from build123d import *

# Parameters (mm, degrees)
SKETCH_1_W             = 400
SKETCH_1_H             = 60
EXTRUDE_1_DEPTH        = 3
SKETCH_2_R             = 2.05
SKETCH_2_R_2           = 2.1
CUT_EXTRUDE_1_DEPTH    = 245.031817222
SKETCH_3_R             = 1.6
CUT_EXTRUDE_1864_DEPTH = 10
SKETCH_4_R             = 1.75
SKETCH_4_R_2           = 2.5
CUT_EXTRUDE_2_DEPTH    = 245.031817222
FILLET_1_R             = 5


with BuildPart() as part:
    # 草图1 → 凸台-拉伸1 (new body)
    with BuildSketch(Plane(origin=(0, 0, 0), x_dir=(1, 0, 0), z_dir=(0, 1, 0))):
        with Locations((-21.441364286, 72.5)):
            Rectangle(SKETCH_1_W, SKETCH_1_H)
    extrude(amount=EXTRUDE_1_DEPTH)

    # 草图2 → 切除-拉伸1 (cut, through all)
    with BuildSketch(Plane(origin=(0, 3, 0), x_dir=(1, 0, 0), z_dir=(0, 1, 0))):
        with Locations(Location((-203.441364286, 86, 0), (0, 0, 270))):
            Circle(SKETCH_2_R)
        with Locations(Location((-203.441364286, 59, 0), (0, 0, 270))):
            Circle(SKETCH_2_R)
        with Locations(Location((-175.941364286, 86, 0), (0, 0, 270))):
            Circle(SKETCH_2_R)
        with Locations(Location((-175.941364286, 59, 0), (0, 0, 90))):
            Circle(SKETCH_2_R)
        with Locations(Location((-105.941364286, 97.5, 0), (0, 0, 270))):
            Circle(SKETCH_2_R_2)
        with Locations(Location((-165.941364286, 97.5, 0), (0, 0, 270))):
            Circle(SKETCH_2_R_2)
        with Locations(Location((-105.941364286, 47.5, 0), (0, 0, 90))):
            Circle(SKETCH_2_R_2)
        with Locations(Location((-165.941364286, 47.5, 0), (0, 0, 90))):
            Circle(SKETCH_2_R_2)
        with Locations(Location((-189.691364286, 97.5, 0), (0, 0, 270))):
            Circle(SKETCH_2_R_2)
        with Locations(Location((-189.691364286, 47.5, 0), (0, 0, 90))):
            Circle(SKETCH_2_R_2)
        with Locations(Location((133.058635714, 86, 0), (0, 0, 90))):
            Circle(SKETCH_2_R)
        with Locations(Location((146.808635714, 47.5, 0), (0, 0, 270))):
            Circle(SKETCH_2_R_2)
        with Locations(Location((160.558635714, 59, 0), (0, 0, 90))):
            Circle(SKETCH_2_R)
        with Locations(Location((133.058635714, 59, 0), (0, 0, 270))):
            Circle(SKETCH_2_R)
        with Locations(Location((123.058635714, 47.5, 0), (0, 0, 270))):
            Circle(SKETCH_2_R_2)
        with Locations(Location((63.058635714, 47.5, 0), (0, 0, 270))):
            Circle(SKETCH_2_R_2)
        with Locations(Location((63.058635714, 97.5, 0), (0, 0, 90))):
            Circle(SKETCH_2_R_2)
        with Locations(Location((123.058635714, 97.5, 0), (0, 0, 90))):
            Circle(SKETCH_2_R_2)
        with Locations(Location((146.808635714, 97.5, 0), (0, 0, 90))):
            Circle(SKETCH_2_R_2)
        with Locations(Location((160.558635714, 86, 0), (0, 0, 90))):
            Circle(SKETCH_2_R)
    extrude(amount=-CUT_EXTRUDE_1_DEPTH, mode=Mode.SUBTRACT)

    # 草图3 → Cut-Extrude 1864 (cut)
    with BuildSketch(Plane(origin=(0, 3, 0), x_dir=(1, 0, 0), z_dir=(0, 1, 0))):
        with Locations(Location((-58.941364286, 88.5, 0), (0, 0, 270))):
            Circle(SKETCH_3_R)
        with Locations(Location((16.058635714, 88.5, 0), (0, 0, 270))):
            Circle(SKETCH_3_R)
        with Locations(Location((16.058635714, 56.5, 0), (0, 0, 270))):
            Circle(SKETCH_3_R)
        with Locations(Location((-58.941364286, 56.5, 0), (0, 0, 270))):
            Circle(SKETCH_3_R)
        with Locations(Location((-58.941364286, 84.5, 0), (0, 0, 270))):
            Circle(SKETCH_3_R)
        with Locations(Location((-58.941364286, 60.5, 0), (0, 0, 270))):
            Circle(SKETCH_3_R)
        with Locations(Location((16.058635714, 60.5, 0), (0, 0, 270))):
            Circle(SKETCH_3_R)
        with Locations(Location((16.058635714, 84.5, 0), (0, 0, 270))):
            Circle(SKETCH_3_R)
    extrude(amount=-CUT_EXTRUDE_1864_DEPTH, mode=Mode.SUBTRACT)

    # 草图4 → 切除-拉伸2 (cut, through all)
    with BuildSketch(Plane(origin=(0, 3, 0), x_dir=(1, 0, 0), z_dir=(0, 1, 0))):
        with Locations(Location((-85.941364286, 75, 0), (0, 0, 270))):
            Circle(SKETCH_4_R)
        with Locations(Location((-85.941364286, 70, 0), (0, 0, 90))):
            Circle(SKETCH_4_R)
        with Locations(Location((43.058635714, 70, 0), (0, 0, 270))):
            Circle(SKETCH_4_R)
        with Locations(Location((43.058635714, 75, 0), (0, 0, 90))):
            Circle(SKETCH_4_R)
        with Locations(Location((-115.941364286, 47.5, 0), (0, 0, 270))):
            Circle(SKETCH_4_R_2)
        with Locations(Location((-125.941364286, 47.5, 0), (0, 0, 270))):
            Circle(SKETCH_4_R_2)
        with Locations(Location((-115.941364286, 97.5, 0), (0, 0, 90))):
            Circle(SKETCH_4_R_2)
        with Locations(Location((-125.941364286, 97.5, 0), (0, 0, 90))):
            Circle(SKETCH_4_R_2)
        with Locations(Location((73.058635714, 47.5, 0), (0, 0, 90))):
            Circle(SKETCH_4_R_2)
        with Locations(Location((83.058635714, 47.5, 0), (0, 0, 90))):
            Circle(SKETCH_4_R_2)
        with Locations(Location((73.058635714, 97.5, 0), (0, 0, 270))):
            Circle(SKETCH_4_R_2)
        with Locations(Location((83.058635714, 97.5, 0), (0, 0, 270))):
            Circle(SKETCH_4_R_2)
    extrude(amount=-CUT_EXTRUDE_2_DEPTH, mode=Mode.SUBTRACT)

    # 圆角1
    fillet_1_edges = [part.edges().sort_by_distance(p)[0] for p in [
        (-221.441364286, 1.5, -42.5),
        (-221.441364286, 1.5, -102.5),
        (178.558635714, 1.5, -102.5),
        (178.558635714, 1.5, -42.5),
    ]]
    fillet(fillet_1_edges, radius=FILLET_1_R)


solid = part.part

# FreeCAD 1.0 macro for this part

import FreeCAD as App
import Part
import Sketcher
from FreeCAD import Vector


def edges_at(feature, points):
    """Names of the edges that pass closest to the given points."""
    edges = feature.Shape.Edges
    near = lambda p: min(range(len(edges)), key=lambda i: edges[i].distToShape(Part.Vertex(*p))[0])
    return sorted({f"Edge{near(p) + 1}" for p in points})


def add_polygon(sketch, points):
    """Adds a closed chain of lines whose ends are joined by coincident constraints."""
    first, n = sketch.GeometryCount, len(points)
    for a, b in zip(points, points[1:] + points[:1]):
        sketch.addGeometry(Part.LineSegment(App.Vector(*a, 0), App.Vector(*b, 0)), False)
    for i in range(n):
        sketch.addConstraint(Sketcher.Constraint("Coincident", first + i, 2, first + (i + 1) % n, 1))

doc = App.newDocument("Part")
body = doc.addObject("PartDesign::Body", "Body")

sketch1 = body.newObject("Sketcher::SketchObject", "Sketch")
sketch1.AttachmentSupport = (doc.getObject("XZ_Plane"), [""])
sketch1.MapMode = "FlatFace"
add_polygon(sketch1, [(-221.441364, -102.5), (-221.441364, -42.5), (178.558636, -42.5), (178.558636, -102.5)])
sketch1.addConstraint(Sketcher.Constraint("Vertical", 0))
sketch1.addConstraint(Sketcher.Constraint("Horizontal", 1))
sketch1.addConstraint(Sketcher.Constraint("Vertical", 2))
sketch1.addConstraint(Sketcher.Constraint("Horizontal", 3))
sketch1.addConstraint(Sketcher.Constraint("DistanceX", 1, 1, 1, 2, 400.0))
sketch1.addConstraint(Sketcher.Constraint("DistanceY", 0, 1, 0, 2, 60.0))
sketch1.addConstraint(Sketcher.Constraint("DistanceY", 0, 2, -1, 1, 42.5))
sketch1.addConstraint(Sketcher.Constraint("DistanceX", 0, 2, -1, 1, 221.441364))
pad1 = body.newObject("PartDesign::Pad", "Pad")
pad1.Profile = sketch1
pad1.Length = 3
pad1.Reversed = True

sketch2 = body.newObject("Sketcher::SketchObject", "Sketch001")
sketch2.AttachmentSupport = (doc.getObject("XZ_Plane"), [""])
sketch2.MapMode = "FlatFace"
sketch2.AttachmentOffset = App.Placement(Vector(0, 0, -3), App.Rotation())
sketch2.addGeometry(Part.Circle(Vector(-203.441364, -86, 0), Vector(0, 0, 1), 2.05), False)
sketch2.addGeometry(Part.Circle(Vector(-203.441364, -59, 0), Vector(0, 0, 1), 2.05), False)
sketch2.addGeometry(Part.Circle(Vector(-175.941364, -86, 0), Vector(0, 0, 1), 2.05), False)
sketch2.addGeometry(Part.Circle(Vector(-175.941364, -59, 0), Vector(0, 0, 1), 2.05), False)
sketch2.addGeometry(Part.Circle(Vector(-105.941364, -97.5, 0), Vector(0, 0, 1), 2.1), False)
sketch2.addGeometry(Part.Circle(Vector(-165.941364, -97.5, 0), Vector(0, 0, 1), 2.1), False)
sketch2.addGeometry(Part.Circle(Vector(-105.941364, -47.5, 0), Vector(0, 0, 1), 2.1), False)
sketch2.addGeometry(Part.Circle(Vector(-165.941364, -47.5, 0), Vector(0, 0, 1), 2.1), False)
sketch2.addGeometry(Part.Circle(Vector(-189.691364, -97.5, 0), Vector(0, 0, 1), 2.1), False)
sketch2.addGeometry(Part.Circle(Vector(-189.691364, -47.5, 0), Vector(0, 0, 1), 2.1), False)
sketch2.addGeometry(Part.Circle(Vector(133.058636, -86, 0), Vector(0, 0, 1), 2.05), False)
sketch2.addGeometry(Part.Circle(Vector(146.808636, -47.5, 0), Vector(0, 0, 1), 2.1), False)
sketch2.addGeometry(Part.Circle(Vector(160.558636, -59, 0), Vector(0, 0, 1), 2.05), False)
sketch2.addGeometry(Part.Circle(Vector(133.058636, -59, 0), Vector(0, 0, 1), 2.05), False)
sketch2.addGeometry(Part.Circle(Vector(123.058636, -47.5, 0), Vector(0, 0, 1), 2.1), False)
sketch2.addGeometry(Part.Circle(Vector(63.058636, -47.5, 0), Vector(0, 0, 1), 2.1), False)
sketch2.addGeometry(Part.Circle(Vector(63.058636, -97.5, 0), Vector(0, 0, 1), 2.1), False)
sketch2.addGeometry(Part.Circle(Vector(123.058636, -97.5, 0), Vector(0, 0, 1), 2.1), False)
sketch2.addGeometry(Part.Circle(Vector(146.808636, -97.5, 0), Vector(0, 0, 1), 2.1), False)
sketch2.addGeometry(Part.Circle(Vector(160.558636, -86, 0), Vector(0, 0, 1), 2.05), False)
sketch2.addConstraint(Sketcher.Constraint("Equal", 0, 1))
sketch2.addConstraint(Sketcher.Constraint("Equal", 1, 2))
sketch2.addConstraint(Sketcher.Constraint("Equal", 2, 3))
sketch2.addConstraint(Sketcher.Constraint("Equal", 4, 5))
sketch2.addConstraint(Sketcher.Constraint("Equal", 5, 6))
sketch2.addConstraint(Sketcher.Constraint("Equal", 6, 7))
sketch2.addConstraint(Sketcher.Constraint("Equal", 7, 8))
sketch2.addConstraint(Sketcher.Constraint("Equal", 8, 9))
sketch2.addConstraint(Sketcher.Constraint("Equal", 3, 10))
sketch2.addConstraint(Sketcher.Constraint("Equal", 9, 11))
sketch2.addConstraint(Sketcher.Constraint("Equal", 10, 12))
sketch2.addConstraint(Sketcher.Constraint("Equal", 12, 13))
sketch2.addConstraint(Sketcher.Constraint("Equal", 11, 14))
sketch2.addConstraint(Sketcher.Constraint("Equal", 14, 15))
sketch2.addConstraint(Sketcher.Constraint("Equal", 15, 16))
sketch2.addConstraint(Sketcher.Constraint("Equal", 16, 17))
sketch2.addConstraint(Sketcher.Constraint("Equal", 17, 18))
sketch2.addConstraint(Sketcher.Constraint("Equal", 13, 19))
sketch2.addConstraint(Sketcher.Constraint("Horizontal", 0, 3, 2, 3))
sketch2.addConstraint(Sketcher.Constraint("Horizontal", 1, 3, 3, 3))
sketch2.addConstraint(Sketcher.Constraint("Horizontal", 4, 3, 5, 3))
sketch2.addConstraint(Sketcher.Constraint("Horizontal", 6, 3, 7, 3))
sketch2.addConstraint(Sketcher.Constraint("Horizontal", 5, 3, 8, 3))
sketch2.addConstraint(Sketcher.Constraint("Horizontal", 7, 3, 9, 3))
sketch2.addConstraint(Sketcher.Constraint("Horizontal", 2, 3, 10, 3))
sketch2.addConstraint(Sketcher.Constraint("Horizontal", 9, 3, 11, 3))
sketch2.addConstraint(Sketcher.Constraint("Horizontal", 3, 3, 12, 3))
sketch2.addConstraint(Sketcher.Constraint("Horizontal", 12, 3, 13, 3))
sketch2.addConstraint(Sketcher.Constraint("Horizontal", 11, 3, 14, 3))
sketch2.addConstraint(Sketcher.Constraint("Horizontal", 14, 3, 15, 3))
sketch2.addConstraint(Sketcher.Constraint("Horizontal", 8, 3, 16, 3))
sketch2.addConstraint(Sketcher.Constraint("Horizontal", 16, 3, 17, 3))
sketch2.addConstraint(Sketcher.Constraint("Horizontal", 17, 3, 18, 3))
sketch2.addConstraint(Sketcher.Constraint("Horizontal", 10, 3, 19, 3))
sketch2.addConstraint(Sketcher.Constraint("Vertical", 0, 3, 1, 3))
sketch2.addConstraint(Sketcher.Constraint("Vertical", 2, 3, 3, 3))
sketch2.addConstraint(Sketcher.Constraint("Vertical", 4, 3, 6, 3))
sketch2.addConstraint(Sketcher.Constraint("Vertical", 5, 3, 7, 3))
sketch2.addConstraint(Sketcher.Constraint("Vertical", 8, 3, 9, 3))
sketch2.addConstraint(Sketcher.Constraint("Vertical", 10, 3, 13, 3))
sketch2.addConstraint(Sketcher.Constraint("Vertical", 15, 3, 16, 3))
sketch2.addConstraint(Sketcher.Constraint("Vertical", 14, 3, 17, 3))
sketch2.addConstraint(Sketcher.Constraint("Vertical", 11, 3, 18, 3))
sketch2.addConstraint(Sketcher.Constraint("Vertical", 12, 3, 19, 3))
sketch2.addConstraint(Sketcher.Constraint("Diameter", 0, 4.1))
sketch2.addConstraint(Sketcher.Constraint("Diameter", 4, 4.2))
sketch2.addConstraint(Sketcher.Constraint("DistanceY", 0, 3, -1, 1, 86.0))
sketch2.addConstraint(Sketcher.Constraint("DistanceY", 1, 3, -1, 1, 59.0))
sketch2.addConstraint(Sketcher.Constraint("DistanceX", 2, 3, 4, 3, 70.0))
sketch2.addConstraint(Sketcher.Constraint("DistanceX", 2, 3, 5, 3, 10.0))
sketch2.addConstraint(Sketcher.Constraint("DistanceY", 4, 3, 6, 3, 50.0))
sketch2.addConstraint(Sketcher.Constraint("DistanceX", 4, 3, 10, 3, 239.0))
sketch2.addConstraint(Sketcher.Constraint("DistanceX", 14, 3, 13, 3, 10.0))
sketch2.addConstraint(Sketcher.Constraint("DistanceX", 15, 3, 14, 3, 60.0))
sketch2.addConstraint(Sketcher.Constraint("DistanceY", 4, 3, -1, 1, 97.5))
sketch2.addConstraint(Sketcher.Constraint("DistanceX", 0, 3, 2, 3, 27.5))
sketch2.addConstraint(Sketcher.Constraint("DistanceX", 10, 3, 12, 3, 27.5))
sketch2.addConstraint(Sketcher.Constraint("DistanceX", 0, 3, 8, 3, 13.75))
sketch2.addConstraint(Sketcher.Constraint("DistanceX", 10, 3, 11, 3, 13.75))
sketch2.addConstraint(Sketcher.Constraint("DistanceX", 0, 3, -1, 1, 203.441364))
pocket1 = body.newObject("PartDesign::Pocket", "Pocket")
pocket1.Profile = sketch2
pocket1.Type = "ThroughAll"
pocket1.Reversed = True

sketch3 = body.newObject("Sketcher::SketchObject", "Sketch002")
sketch3.AttachmentSupport = (doc.getObject("XZ_Plane"), [""])
sketch3.MapMode = "FlatFace"
sketch3.AttachmentOffset = App.Placement(Vector(0, 0, -3), App.Rotation())
sketch3.addGeometry(Part.Circle(Vector(-58.941364, -88.5, 0), Vector(0, 0, 1), 1.6), False)
sketch3.addGeometry(Part.Circle(Vector(16.058636, -88.5, 0), Vector(0, 0, 1), 1.6), False)
sketch3.addGeometry(Part.Circle(Vector(16.058636, -56.5, 0), Vector(0, 0, 1), 1.6), False)
sketch3.addGeometry(Part.Circle(Vector(-58.941364, -56.5, 0), Vector(0, 0, 1), 1.6), False)
sketch3.addGeometry(Part.Circle(Vector(-58.941364, -84.5, 0), Vector(0, 0, 1), 1.6), False)
sketch3.addGeometry(Part.Circle(Vector(-58.941364, -60.5, 0), Vector(0, 0, 1), 1.6), False)
sketch3.addGeometry(Part.Circle(Vector(16.058636, -60.5, 0), Vector(0, 0, 1), 1.6), False)
sketch3.addGeometry(Part.Circle(Vector(16.058636, -84.5, 0), Vector(0, 0, 1), 1.6), False)
sketch3.addConstraint(Sketcher.Constraint("Equal", 0, 1))
sketch3.addConstraint(Sketcher.Constraint("Equal", 1, 2))
sketch3.addConstraint(Sketcher.Constraint("Equal", 2, 3))
sketch3.addConstraint(Sketcher.Constraint("Equal", 3, 4))
sketch3.addConstraint(Sketcher.Constraint("Equal", 4, 5))
sketch3.addConstraint(Sketcher.Constraint("Equal", 5, 6))
sketch3.addConstraint(Sketcher.Constraint("Equal", 6, 7))
sketch3.addConstraint(Sketcher.Constraint("Horizontal", 0, 3, 1, 3))
sketch3.addConstraint(Sketcher.Constraint("Horizontal", 2, 3, 3, 3))
sketch3.addConstraint(Sketcher.Constraint("Horizontal", 5, 3, 6, 3))
sketch3.addConstraint(Sketcher.Constraint("Horizontal", 4, 3, 7, 3))
sketch3.addConstraint(Sketcher.Constraint("Vertical", 1, 3, 2, 3))
sketch3.addConstraint(Sketcher.Constraint("Vertical", 0, 3, 3, 3))
sketch3.addConstraint(Sketcher.Constraint("Vertical", 3, 3, 4, 3))
sketch3.addConstraint(Sketcher.Constraint("Vertical", 4, 3, 5, 3))
sketch3.addConstraint(Sketcher.Constraint("Vertical", 2, 3, 6, 3))
sketch3.addConstraint(Sketcher.Constraint("Vertical", 6, 3, 7, 3))
sketch3.addConstraint(Sketcher.Constraint("Diameter", 0, 3.2))
sketch3.addConstraint(Sketcher.Constraint("DistanceX", 0, 3, 1, 3, 75.0))
sketch3.addConstraint(Sketcher.Constraint("DistanceY", 1, 3, 2, 3, 32.0))
sketch3.addConstraint(Sketcher.Constraint("DistanceY", 0, 3, 4, 3, 4.0))
sketch3.addConstraint(Sketcher.Constraint("DistanceY", 5, 3, 3, 3, 4.0))
sketch3.addConstraint(Sketcher.Constraint("DistanceY", 0, 3, -1, 1, 88.5))
sketch3.addConstraint(Sketcher.Constraint("DistanceX", 0, 3, -1, 1, 58.941364))
pocket2 = body.newObject("PartDesign::Pocket", "Pocket001")
pocket2.Profile = sketch3
pocket2.Length = 10
pocket2.Reversed = True

sketch4 = body.newObject("Sketcher::SketchObject", "Sketch003")
sketch4.AttachmentSupport = (doc.getObject("XZ_Plane"), [""])
sketch4.MapMode = "FlatFace"
sketch4.AttachmentOffset = App.Placement(Vector(0, 0, -3), App.Rotation())
sketch4.addGeometry(Part.Circle(Vector(-85.941364, -75, 0), Vector(0, 0, 1), 1.75), False)
sketch4.addGeometry(Part.Circle(Vector(-85.941364, -70, 0), Vector(0, 0, 1), 1.75), False)
sketch4.addGeometry(Part.Circle(Vector(43.058636, -70, 0), Vector(0, 0, 1), 1.75), False)
sketch4.addGeometry(Part.Circle(Vector(43.058636, -75, 0), Vector(0, 0, 1), 1.75), False)
sketch4.addGeometry(Part.Circle(Vector(-115.941364, -47.5, 0), Vector(0, 0, 1), 2.5), False)
sketch4.addGeometry(Part.Circle(Vector(-125.941364, -47.5, 0), Vector(0, 0, 1), 2.5), False)
sketch4.addGeometry(Part.Circle(Vector(-115.941364, -97.5, 0), Vector(0, 0, 1), 2.5), False)
sketch4.addGeometry(Part.Circle(Vector(-125.941364, -97.5, 0), Vector(0, 0, 1), 2.5), False)
sketch4.addGeometry(Part.Circle(Vector(73.058636, -47.5, 0), Vector(0, 0, 1), 2.5), False)
sketch4.addGeometry(Part.Circle(Vector(83.058636, -47.5, 0), Vector(0, 0, 1), 2.5), False)
sketch4.addGeometry(Part.Circle(Vector(73.058636, -97.5, 0), Vector(0, 0, 1), 2.5), False)
sketch4.addGeometry(Part.Circle(Vector(83.058636, -97.5, 0), Vector(0, 0, 1), 2.5), False)
sketch4.addConstraint(Sketcher.Constraint("Equal", 0, 1))
sketch4.addConstraint(Sketcher.Constraint("Equal", 1, 2))
sketch4.addConstraint(Sketcher.Constraint("Equal", 2, 3))
sketch4.addConstraint(Sketcher.Constraint("Equal", 4, 5))
sketch4.addConstraint(Sketcher.Constraint("Equal", 5, 6))
sketch4.addConstraint(Sketcher.Constraint("Equal", 6, 7))
sketch4.addConstraint(Sketcher.Constraint("Equal", 7, 8))
sketch4.addConstraint(Sketcher.Constraint("Equal", 8, 9))
sketch4.addConstraint(Sketcher.Constraint("Equal", 9, 10))
sketch4.addConstraint(Sketcher.Constraint("Equal", 10, 11))
sketch4.addConstraint(Sketcher.Constraint("Horizontal", 1, 3, 2, 3))
sketch4.addConstraint(Sketcher.Constraint("Horizontal", 0, 3, 3, 3))
sketch4.addConstraint(Sketcher.Constraint("Horizontal", 4, 3, 5, 3))
sketch4.addConstraint(Sketcher.Constraint("Horizontal", 6, 3, 7, 3))
sketch4.addConstraint(Sketcher.Constraint("Horizontal", 5, 3, 8, 3))
sketch4.addConstraint(Sketcher.Constraint("Horizontal", 8, 3, 9, 3))
sketch4.addConstraint(Sketcher.Constraint("Horizontal", 7, 3, 10, 3))
sketch4.addConstraint(Sketcher.Constraint("Horizontal", 10, 3, 11, 3))
sketch4.addConstraint(Sketcher.Constraint("Vertical", 0, 3, 1, 3))
sketch4.addConstraint(Sketcher.Constraint("Vertical", 2, 3, 3, 3))
sketch4.addConstraint(Sketcher.Constraint("Vertical", 4, 3, 6, 3))
sketch4.addConstraint(Sketcher.Constraint("Vertical", 5, 3, 7, 3))
sketch4.addConstraint(Sketcher.Constraint("Vertical", 8, 3, 10, 3))
sketch4.addConstraint(Sketcher.Constraint("Vertical", 9, 3, 11, 3))
sketch4.addConstraint(Sketcher.Constraint("Diameter", 4, 5.0))
sketch4.addConstraint(Sketcher.Constraint("Diameter", 0, 3.5))
sketch4.addConstraint(Sketcher.Constraint("DistanceY", 0, 3, -1, 1, 75.0))
sketch4.addConstraint(Sketcher.Constraint("DistanceY", 1, 3, -1, 1, 70.0))
sketch4.addConstraint(Sketcher.Constraint("DistanceX", 1, 3, 2, 3, 129.0))
sketch4.addConstraint(Sketcher.Constraint("DistanceX", 4, 3, 1, 3, 30.0))
sketch4.addConstraint(Sketcher.Constraint("DistanceX", 5, 3, 4, 3, 10.0))
sketch4.addConstraint(Sketcher.Constraint("DistanceY", 6, 3, 4, 3, 50.0))
sketch4.addConstraint(Sketcher.Constraint("DistanceX", 2, 3, 8, 3, 30.0))
sketch4.addConstraint(Sketcher.Constraint("DistanceX", 8, 3, 9, 3, 10.0))
sketch4.addConstraint(Sketcher.Constraint("DistanceY", 4, 3, -1, 1, 47.5))
sketch4.addConstraint(Sketcher.Constraint("DistanceX", 0, 3, -1, 1, 85.941364))
pocket3 = body.newObject("PartDesign::Pocket", "Pocket002")
pocket3.Profile = sketch4
pocket3.Type = "ThroughAll"
pocket3.Reversed = True
doc.recompute()

fillet = body.newObject("PartDesign::Fillet", "Fillet")
fillet.Base = (pocket3, edges_at(pocket3, [
    (-221.441, 1.5, -42.5),
    (-221.441, 1.5, -102.5),
    (178.559, 1.5, -102.5),
    (178.559, 1.5, -42.5),
]))
fillet.Radius = 5

doc.recompute()
